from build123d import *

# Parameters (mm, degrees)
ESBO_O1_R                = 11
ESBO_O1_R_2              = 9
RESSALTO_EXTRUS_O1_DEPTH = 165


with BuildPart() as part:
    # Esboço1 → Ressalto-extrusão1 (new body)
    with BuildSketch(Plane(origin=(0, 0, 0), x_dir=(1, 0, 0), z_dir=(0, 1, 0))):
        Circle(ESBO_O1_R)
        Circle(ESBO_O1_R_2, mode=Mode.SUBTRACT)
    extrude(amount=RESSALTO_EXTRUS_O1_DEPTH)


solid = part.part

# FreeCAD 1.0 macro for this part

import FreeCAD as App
import Part
import Sketcher

V = App.Vector
Q = App.Units.Quantity

doc = App.newDocument("Part")
body = doc.addObject("PartDesign::Body", "Body")

# Sketch on XZ plane
sketch1 = body.newObject("Sketcher::SketchObject", "Sketch")
sketch1.AttachmentSupport = (doc.getObject("XZ_Plane"), [""])
sketch1.MapMode = "FlatFace"
sketch1.addGeometry(Part.Circle(V(0, 0, 0), V(0, 0, 1), 11), False)
sketch1.addGeometry(Part.Circle(V(0, 0, 0), V(0, 0, 1), 9), False)
sketch1.addConstraint(Sketcher.Constraint("Coincident", 0, 3, -1, 1))
sketch1.addConstraint(Sketcher.Constraint("Coincident", 1, 3, -1, 1))
sketch1.addConstraint(Sketcher.Constraint("Diameter", 0, Q("22 mm")))
sketch1.addConstraint(Sketcher.Constraint("Diameter", 1, Q("18 mm")))
pad1 = body.newObject("PartDesign::Pad", "Pad")
pad1.Profile = sketch1
pad1.Length = 165
pad1.Reversed = True

doc.recompute()
